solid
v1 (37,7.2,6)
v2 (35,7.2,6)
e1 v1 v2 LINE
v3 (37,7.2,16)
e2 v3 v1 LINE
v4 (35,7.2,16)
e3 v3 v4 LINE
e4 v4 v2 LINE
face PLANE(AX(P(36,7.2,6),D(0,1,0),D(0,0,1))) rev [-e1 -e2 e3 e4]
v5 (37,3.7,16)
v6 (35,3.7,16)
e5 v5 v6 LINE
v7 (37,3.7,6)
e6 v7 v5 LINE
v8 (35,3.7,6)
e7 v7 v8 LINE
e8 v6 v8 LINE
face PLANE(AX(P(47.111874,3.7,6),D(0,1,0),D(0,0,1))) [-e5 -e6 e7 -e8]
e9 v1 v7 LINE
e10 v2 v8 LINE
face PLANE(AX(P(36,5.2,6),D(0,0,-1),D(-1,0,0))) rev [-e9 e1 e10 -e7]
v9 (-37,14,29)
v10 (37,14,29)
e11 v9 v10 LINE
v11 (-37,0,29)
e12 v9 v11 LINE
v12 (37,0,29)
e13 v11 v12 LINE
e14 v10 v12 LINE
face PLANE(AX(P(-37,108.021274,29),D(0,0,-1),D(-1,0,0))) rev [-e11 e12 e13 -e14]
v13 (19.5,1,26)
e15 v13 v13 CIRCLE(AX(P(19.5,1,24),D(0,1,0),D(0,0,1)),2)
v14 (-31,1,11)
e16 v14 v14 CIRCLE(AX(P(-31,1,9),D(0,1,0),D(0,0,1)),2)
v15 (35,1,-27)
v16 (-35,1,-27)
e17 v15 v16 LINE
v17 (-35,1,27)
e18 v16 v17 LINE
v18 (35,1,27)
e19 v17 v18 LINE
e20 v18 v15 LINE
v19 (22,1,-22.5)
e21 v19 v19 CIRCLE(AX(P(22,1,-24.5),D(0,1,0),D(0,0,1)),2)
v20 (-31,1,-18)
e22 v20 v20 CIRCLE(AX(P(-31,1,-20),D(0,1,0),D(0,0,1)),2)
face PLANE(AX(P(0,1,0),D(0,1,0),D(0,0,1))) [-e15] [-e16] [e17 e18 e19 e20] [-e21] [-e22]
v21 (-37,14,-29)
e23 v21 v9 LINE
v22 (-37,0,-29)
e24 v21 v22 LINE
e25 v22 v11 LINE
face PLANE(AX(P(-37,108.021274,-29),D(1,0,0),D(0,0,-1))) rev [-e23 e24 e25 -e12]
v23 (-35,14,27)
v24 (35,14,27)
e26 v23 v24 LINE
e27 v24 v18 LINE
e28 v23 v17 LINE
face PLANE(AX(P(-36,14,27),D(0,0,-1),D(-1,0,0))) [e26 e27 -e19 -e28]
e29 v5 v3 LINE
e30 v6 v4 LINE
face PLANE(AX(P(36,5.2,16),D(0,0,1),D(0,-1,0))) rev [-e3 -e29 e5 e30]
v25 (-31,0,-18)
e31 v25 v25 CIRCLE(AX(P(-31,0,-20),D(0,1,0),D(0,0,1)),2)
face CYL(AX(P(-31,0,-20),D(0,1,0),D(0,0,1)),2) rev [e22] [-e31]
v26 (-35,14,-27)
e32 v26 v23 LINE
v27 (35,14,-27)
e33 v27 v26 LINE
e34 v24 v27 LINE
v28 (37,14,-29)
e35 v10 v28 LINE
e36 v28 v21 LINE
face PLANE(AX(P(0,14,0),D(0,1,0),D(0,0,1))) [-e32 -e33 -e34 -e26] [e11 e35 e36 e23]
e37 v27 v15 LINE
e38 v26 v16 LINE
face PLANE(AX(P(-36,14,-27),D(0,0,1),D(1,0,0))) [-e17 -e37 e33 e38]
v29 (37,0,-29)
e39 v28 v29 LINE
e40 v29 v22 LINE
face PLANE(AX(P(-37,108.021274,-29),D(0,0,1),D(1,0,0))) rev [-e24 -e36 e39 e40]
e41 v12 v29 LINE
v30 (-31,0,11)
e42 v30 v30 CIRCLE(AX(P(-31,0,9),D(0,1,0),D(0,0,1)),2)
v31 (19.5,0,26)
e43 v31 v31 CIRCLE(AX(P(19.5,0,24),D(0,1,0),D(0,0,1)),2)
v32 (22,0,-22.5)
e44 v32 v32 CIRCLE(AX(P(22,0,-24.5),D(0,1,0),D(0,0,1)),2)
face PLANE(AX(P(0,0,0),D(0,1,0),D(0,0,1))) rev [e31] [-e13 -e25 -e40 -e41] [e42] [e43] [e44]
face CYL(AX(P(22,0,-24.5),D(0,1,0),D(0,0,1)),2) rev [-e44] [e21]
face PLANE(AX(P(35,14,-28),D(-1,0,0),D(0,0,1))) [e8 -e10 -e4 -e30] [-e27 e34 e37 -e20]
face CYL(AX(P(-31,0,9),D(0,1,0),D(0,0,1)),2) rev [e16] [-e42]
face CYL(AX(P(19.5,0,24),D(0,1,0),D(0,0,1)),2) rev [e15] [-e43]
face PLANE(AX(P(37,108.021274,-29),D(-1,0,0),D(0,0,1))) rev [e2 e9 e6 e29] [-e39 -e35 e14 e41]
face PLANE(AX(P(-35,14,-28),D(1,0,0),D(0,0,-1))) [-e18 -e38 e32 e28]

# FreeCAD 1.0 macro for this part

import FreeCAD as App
import Part
import Sketcher

V = App.Vector
Q = App.Units.Quantity


def add_polygon(sketch, points):
    """Adds a closed chain of lines whose ends are joined by coincident constraints."""
    first, n = sketch.GeometryCount, len(points)
    for a, b in zip(points, points[1:] + points[:1]):
        sketch.addGeometry(Part.LineSegment(App.Vector(*a, 0), App.Vector(*b, 0)), False)
    for i in range(n):
        sketch.addConstraint(Sketcher.Constraint("Coincident", first + i, 2, first + (i + 1) % n, 1))

doc = App.newDocument("Part")
body = doc.addObject("PartDesign::Body", "Body")

sketch1 = body.newObject("Sketcher::SketchObject", "Sketch")
sketch1.AttachmentSupport = (doc.getObject("XZ_Plane"), [""])
sketch1.MapMode = "FlatFace"
add_polygon(sketch1, [(-36, -28), (-36, 28), (36, 28), (36, -28)])
sketch1.addConstraint([
    Sketcher.Constraint("Vertical", 0),
    Sketcher.Constraint("Horizontal", 1),
    Sketcher.Constraint("Vertical", 2),
    Sketcher.Constraint("Horizontal", 3),
    Sketcher.Constraint("Symmetric", 0, 2, 2, 2, -1, 1),
    Sketcher.Constraint("DistanceX", 1, 1, 1, 2, Q("72 mm")),
    Sketcher.Constraint("DistanceY", 0, 1, 0, 2, Q("56 mm")),
])
pad1 = body.newObject("PartDesign::Pad", "Pad")
pad1.Profile = sketch1
pad1.Length = 1
pad1.Reversed = True

sketch2 = body.newObject("Sketcher::SketchObject", "Sketch001")
sketch2.AttachmentSupport = (doc.getObject("XZ_Plane"), [""])
sketch2.MapMode = "FlatFace"
sketch2.AttachmentOffset = App.Placement(V(0, 0, -1), App.Rotation())
add_polygon(sketch2, [(-36, -28), (-36, 28), (36, 28), (36, -28)])
add_polygon(sketch2, [(35, 27), (-35, 27), (-35, -27), (35, -27)])
sketch2.addConstraint([
    Sketcher.Constraint("Vertical", 0),
    Sketcher.Constraint("Horizontal", 1),
    Sketcher.Constraint("Vertical", 2),
    Sketcher.Constraint("Horizontal", 3),
    Sketcher.Constraint("Horizontal", 4),
    Sketcher.Constraint("Vertical", 5),
    Sketcher.Constraint("Horizontal", 6),
    Sketcher.Constraint("Vertical", 7),
    Sketcher.Constraint("Symmetric", 0, 2, 2, 2, -1, 1),
    Sketcher.Constraint("Symmetric", 4, 2, 6, 2, -1, 1),
    Sketcher.Constraint("DistanceX", 1, 1, 1, 2, Q("72 mm")),
    Sketcher.Constraint("DistanceX", 4, 2, 4, 1, Q("70 mm")),
    Sketcher.Constraint("DistanceY", 0, 1, 0, 2, Q("56 mm")),
    Sketcher.Constraint("DistanceY", 5, 2, 5, 1, Q("54 mm")),
])
pad2 = body.newObject("PartDesign::Pad", "Pad001")
pad2.Profile = sketch2
pad2.Length = 13
pad2.Reversed = True

sketch3 = body.newObject("Sketcher::SketchObject", "Sketch002")
sketch3.AttachmentSupport = (doc.getObject("YZ_Plane"), [""])
sketch3.MapMode = "FlatFace"
sketch3.AttachmentOffset = App.Placement(V(0, 0, 35), App.Rotation())
add_polygon(sketch3, [(6, 15.9), (2, 15.9), (2, 25.9), (6, 25.9)])
sketch3.addConstraint([
    Sketcher.Constraint("Horizontal", 0),
    Sketcher.Constraint("Vertical", 1),
    Sketcher.Constraint("Horizontal", 2),
    Sketcher.Constraint("Vertical", 3),
    Sketcher.Constraint("DistanceX", 0, 2, 0, 1, Q("4 mm")),
    Sketcher.Constraint("DistanceY", 1, 1, 1, 2, Q("10 mm")),
    Sketcher.Constraint("DistanceX", -1, 1, 0, 2, Q("2 mm")),
    Sketcher.Constraint("DistanceY", -1, 1, 0, 2, Q("15.9 mm")),
])
pocket1 = body.newObject("PartDesign::Pocket", "Pocket")
pocket1.Profile = sketch3
pocket1.Length = 1
pocket1.Reversed = True

sketch4 = body.newObject("Sketcher::SketchObject", "Sketch003")
sketch4.AttachmentSupport = (doc.getObject("XZ_Plane"), [""])
sketch4.MapMode = "FlatFace"
sketch4.AttachmentOffset = App.Placement(V(0, 0, -1), App.Rotation())
sketch4.addGeometry([
    Part.Circle(V(19.5, 24, 0), V(0, 0, 1), 2),
    Part.Circle(V(22, -24.5, 0), V(0, 0, 1), 2),
    Part.Circle(V(-31, 9, 0), V(0, 0, 1), 2),
    Part.Circle(V(-31, -20, 0), V(0, 0, 1), 2),
], False)
sketch4.addConstraint([
    Sketcher.Constraint("Equal", 0, 1),
    Sketcher.Constraint("Equal", 1, 2),
    Sketcher.Constraint("Equal", 2, 3),
    Sketcher.Constraint("Vertical", 2, 3, 3, 3),
    Sketcher.Constraint("Diameter", 0, Q("4 mm")),
    Sketcher.Constraint("DistanceY", -1, 1, 0, 3, Q("24 mm")),
    Sketcher.Constraint("DistanceX", -1, 1, 1, 3, Q("22 mm")),
    Sketcher.Constraint("DistanceX", 2, 3, -1, 1, Q("31 mm")),
    Sketcher.Constraint("DistanceY", -1, 1, 2, 3, Q("9 mm")),
    Sketcher.Constraint("DistanceY", 3, 3, -1, 1, Q("20 mm")),
    Sketcher.Constraint("DistanceX", -1, 1, 0, 3, Q("19.5 mm")),
    Sketcher.Constraint("DistanceY", 1, 3, -1, 1, Q("24.5 mm")),
])
pocket2 = body.newObject("PartDesign::Pocket", "Pocket001")
pocket2.Profile = sketch4
pocket2.Length = 1
pocket2.Reversed = True

sketch5 = body.newObject("Sketcher::SketchObject", "Sketch004")
sketch5.AttachmentSupport = (doc.getObject("XY_Plane"), [""])
sketch5.MapMode = "FlatFace"
sketch5.AttachmentOffset = App.Placement(V(0, 0, 28), App.Rotation())
add_polygon(sketch5, [(35, 14), (35, 0), (36, 0), (36, 14)])
sketch5.addConstraint([
    Sketcher.Constraint("Vertical", 0),
    Sketcher.Constraint("Horizontal", 1),
    Sketcher.Constraint("Vertical", 2),
    Sketcher.Constraint("Horizontal", 3),
    Sketcher.Constraint("PointOnObject", 0, 2, -1),
    Sketcher.Constraint("DistanceX", 1, 1, 1, 2, Q("1 mm")),
    Sketcher.Constraint("DistanceY", 0, 2, 0, 1, Q("14 mm")),
    Sketcher.Constraint("DistanceX", -1, 1, 0, 2, Q("35 mm")),
])
pad3 = body.newObject("PartDesign::Pad", "Pad002")
pad3.Profile = sketch5
pad3.Length = 56
pad3.Reversed = True

sketch6 = body.newObject("Sketcher::SketchObject", "Sketch005")
sketch6.AttachmentSupport = (doc.getObject("YZ_Plane"), [""])
sketch6.MapMode = "FlatFace"
sketch6.AttachmentOffset = App.Placement(V(0, 0, 35), App.Rotation())
add_polygon(sketch6, [(5.2, 6), (2.2, 6), (2.2, 16), (5.2, 16)])
sketch6.addConstraint([
    Sketcher.Constraint("Horizontal", 0),
    Sketcher.Constraint("Vertical", 1),
    Sketcher.Constraint("Horizontal", 2),
    Sketcher.Constraint("Vertical", 3),
    Sketcher.Constraint("DistanceX", 0, 2, 0, 1, Q("3 mm")),
    Sketcher.Constraint("DistanceY", 1, 1, 1, 2, Q("10 mm")),
    Sketcher.Constraint("DistanceY", -1, 1, 0, 2, Q("6 mm")),
    Sketcher.Constraint("DistanceX", -1, 1, 0, 2, Q("2.2 mm")),
])
pocket3 = body.newObject("PartDesign::Pocket", "Pocket002")
pocket3.Profile = sketch6
pocket3.Length = 1
pocket3.Reversed = True

sketch7 = body.newObject("Sketcher::SketchObject", "Sketch006")
sketch7.AttachmentSupport = (doc.getObject("XZ_Plane"), [""])
sketch7.MapMode = "FlatFace"
sketch7.AttachmentOffset = App.Placement(V(0, 0, -1), App.Rotation())
add_polygon(sketch7, [(-37, -29), (-37, 29), (37, 29), (37, -29)])
add_polygon(sketch7, [(36, 28), (-36, 28), (-36, -28), (36, -28)])
sketch7.addConstraint([
    Sketcher.Constraint("Vertical", 0),
    Sketcher.Constraint("Horizontal", 1),
    Sketcher.Constraint("Vertical", 2),
    Sketcher.Constraint("Horizontal", 3),
    Sketcher.Constraint("Horizontal", 4),
    Sketcher.Constraint("Vertical", 5),
    Sketcher.Constraint("Horizontal", 6),
    Sketcher.Constraint("Vertical", 7),
    Sketcher.Constraint("Symmetric", 0, 2, 2, 2, -1, 1),
    Sketcher.Constraint("Symmetric", 4, 2, 6, 2, -1, 1),
    Sketcher.Constraint("DistanceX", 1, 1, 1, 2, Q("74 mm")),
    Sketcher.Constraint("DistanceX", 4, 2, 4, 1, Q("72 mm")),
    Sketcher.Constraint("DistanceY", 0, 1, 0, 2, Q("58 mm")),
    Sketcher.Constraint("DistanceY", 5, 2, 5, 1, Q("56 mm")),
])
pad4 = body.newObject("PartDesign::Pad", "Pad003")
pad4.Profile = sketch7
pad4.Length = 13
pad4.Reversed = True

sketch8 = body.newObject("Sketcher::SketchObject", "Sketch007")
sketch8.AttachmentSupport = (doc.getObject("YZ_Plane"), [""])
sketch8.MapMode = "FlatFace"
sketch8.AttachmentOffset = App.Placement(V(0, 0, 35), App.Rotation())
add_polygon(sketch8, [(7, 6), (2, 6), (2, 16), (7, 16)])
sketch8.addConstraint([
    Sketcher.Constraint("Horizontal", 0),
    Sketcher.Constraint("Vertical", 1),
    Sketcher.Constraint("Horizontal", 2),
    Sketcher.Constraint("Vertical", 3),
    Sketcher.Constraint("DistanceX", 0, 2, 0, 1, Q("5 mm")),
    Sketcher.Constraint("DistanceY", 1, 1, 1, 2, Q("10 mm")),
    Sketcher.Constraint("DistanceY", -1, 1, 0, 2, Q("6 mm")),
    Sketcher.Constraint("DistanceX", -1, 1, 0, 2, Q("2.2 mm")),
])
pocket4 = body.newObject("PartDesign::Pocket", "Pocket003")
pocket4.Profile = sketch8
pocket4.Length = 1
pocket4.Reversed = True

sketch9 = body.newObject("Sketcher::SketchObject", "Sketch008")
sketch9.AttachmentSupport = (doc.getObject("YZ_Plane"), [""])
sketch9.MapMode = "FlatFace"
sketch9.AttachmentOffset = App.Placement(V(0, 0, 35), App.Rotation())
add_polygon(sketch9, [(3.7, 6), (2.2, 6), (2.2, 16), (3.7, 16)])
sketch9.addConstraint([
    Sketcher.Constraint("Horizontal", 0),
    Sketcher.Constraint("Vertical", 1),
    Sketcher.Constraint("Horizontal", 2),
    Sketcher.Constraint("Vertical", 3),
    Sketcher.Constraint("DistanceY", 1, 1, 1, 2, Q("10 mm")),
    Sketcher.Constraint("DistanceX", 0, 2, 0, 1, Q("1.5 mm")),
    Sketcher.Constraint("DistanceY", -1, 1, 0, 2, Q("6 mm")),
    Sketcher.Constraint("DistanceX", -1, 1, 0, 2, Q("2.2 mm")),
])
pad5 = body.newObject("PartDesign::Pad", "Pad004")
pad5.Profile = sketch9
pad5.Length = 2

sketch10 = body.newObject("Sketcher::SketchObject", "Sketch009")
sketch10.AttachmentSupport = (doc.getObject("YZ_Plane"), [""])
sketch10.MapMode = "FlatFace"
sketch10.AttachmentOffset = App.Placement(V(0, 0, 35), App.Rotation())
add_polygon(sketch10, [(7.2, 6), (3.7, 6), (3.7, 16), (7.2, 16)])
sketch10.addConstraint([
    Sketcher.Constraint("Horizontal", 0),
    Sketcher.Constraint("Vertical", 1),
    Sketcher.Constraint("Horizontal", 2),
    Sketcher.Constraint("Vertical", 3),
    Sketcher.Constraint("DistanceY", 1, 1, 1, 2, Q("10 mm")),
    Sketcher.Constraint("DistanceX", 0, 2, 0, 1, Q("3.5 mm")),
    Sketcher.Constraint("DistanceY", -1, 1, 0, 2, Q("6 mm")),
    Sketcher.Constraint("DistanceX", -1, 1, 0, 2, Q("3.7 mm")),
])
pocket5 = body.newObject("PartDesign::Pocket", "Pocket004")
pocket5.Profile = sketch10
pocket5.Length = 2
pocket5.Reversed = True

sketch11 = body.newObject("Sketcher::SketchObject", "Sketch010")
sketch11.AttachmentSupport = (doc.getObject("XZ_Plane"), [""])
sketch11.MapMode = "FlatFace"
sketch11.AttachmentOffset = App.Placement(V(0, 0, -1), App.Rotation())
add_polygon(sketch11, [(-37, 29), (-37, -29), (37, -29), (37, 29)])
add_polygon(sketch11, [(36, -28), (-36, -28), (-36, 28), (36, 28)])
sketch11.addConstraint([
    Sketcher.Constraint("Vertical", 0),
    Sketcher.Constraint("Horizontal", 1),
    Sketcher.Constraint("Vertical", 2),
    Sketcher.Constraint("Horizontal", 3),
    Sketcher.Constraint("Horizontal", 4),
    Sketcher.Constraint("Vertical", 5),
    Sketcher.Constraint("Horizontal", 6),
    Sketcher.Constraint("Vertical", 7),
    Sketcher.Constraint("Symmetric", 0, 2, 2, 2, -1, 1),
    Sketcher.Constraint("Symmetric", 4, 2, 6, 2, -1, 1),
    Sketcher.Constraint("DistanceX", 1, 1, 1, 2, Q("74 mm")),
    Sketcher.Constraint("DistanceX", 4, 2, 4, 1, Q("72 mm")),
    Sketcher.Constraint("DistanceY", 0, 2, 0, 1, Q("58 mm")),
    Sketcher.Constraint("DistanceY", 5, 1, 5, 2, Q("56 mm")),
])
pad6 = body.newObject("PartDesign::Pad", "Pad005")
pad6.Profile = sketch11
pad6.Length = 1

doc.recompute()
